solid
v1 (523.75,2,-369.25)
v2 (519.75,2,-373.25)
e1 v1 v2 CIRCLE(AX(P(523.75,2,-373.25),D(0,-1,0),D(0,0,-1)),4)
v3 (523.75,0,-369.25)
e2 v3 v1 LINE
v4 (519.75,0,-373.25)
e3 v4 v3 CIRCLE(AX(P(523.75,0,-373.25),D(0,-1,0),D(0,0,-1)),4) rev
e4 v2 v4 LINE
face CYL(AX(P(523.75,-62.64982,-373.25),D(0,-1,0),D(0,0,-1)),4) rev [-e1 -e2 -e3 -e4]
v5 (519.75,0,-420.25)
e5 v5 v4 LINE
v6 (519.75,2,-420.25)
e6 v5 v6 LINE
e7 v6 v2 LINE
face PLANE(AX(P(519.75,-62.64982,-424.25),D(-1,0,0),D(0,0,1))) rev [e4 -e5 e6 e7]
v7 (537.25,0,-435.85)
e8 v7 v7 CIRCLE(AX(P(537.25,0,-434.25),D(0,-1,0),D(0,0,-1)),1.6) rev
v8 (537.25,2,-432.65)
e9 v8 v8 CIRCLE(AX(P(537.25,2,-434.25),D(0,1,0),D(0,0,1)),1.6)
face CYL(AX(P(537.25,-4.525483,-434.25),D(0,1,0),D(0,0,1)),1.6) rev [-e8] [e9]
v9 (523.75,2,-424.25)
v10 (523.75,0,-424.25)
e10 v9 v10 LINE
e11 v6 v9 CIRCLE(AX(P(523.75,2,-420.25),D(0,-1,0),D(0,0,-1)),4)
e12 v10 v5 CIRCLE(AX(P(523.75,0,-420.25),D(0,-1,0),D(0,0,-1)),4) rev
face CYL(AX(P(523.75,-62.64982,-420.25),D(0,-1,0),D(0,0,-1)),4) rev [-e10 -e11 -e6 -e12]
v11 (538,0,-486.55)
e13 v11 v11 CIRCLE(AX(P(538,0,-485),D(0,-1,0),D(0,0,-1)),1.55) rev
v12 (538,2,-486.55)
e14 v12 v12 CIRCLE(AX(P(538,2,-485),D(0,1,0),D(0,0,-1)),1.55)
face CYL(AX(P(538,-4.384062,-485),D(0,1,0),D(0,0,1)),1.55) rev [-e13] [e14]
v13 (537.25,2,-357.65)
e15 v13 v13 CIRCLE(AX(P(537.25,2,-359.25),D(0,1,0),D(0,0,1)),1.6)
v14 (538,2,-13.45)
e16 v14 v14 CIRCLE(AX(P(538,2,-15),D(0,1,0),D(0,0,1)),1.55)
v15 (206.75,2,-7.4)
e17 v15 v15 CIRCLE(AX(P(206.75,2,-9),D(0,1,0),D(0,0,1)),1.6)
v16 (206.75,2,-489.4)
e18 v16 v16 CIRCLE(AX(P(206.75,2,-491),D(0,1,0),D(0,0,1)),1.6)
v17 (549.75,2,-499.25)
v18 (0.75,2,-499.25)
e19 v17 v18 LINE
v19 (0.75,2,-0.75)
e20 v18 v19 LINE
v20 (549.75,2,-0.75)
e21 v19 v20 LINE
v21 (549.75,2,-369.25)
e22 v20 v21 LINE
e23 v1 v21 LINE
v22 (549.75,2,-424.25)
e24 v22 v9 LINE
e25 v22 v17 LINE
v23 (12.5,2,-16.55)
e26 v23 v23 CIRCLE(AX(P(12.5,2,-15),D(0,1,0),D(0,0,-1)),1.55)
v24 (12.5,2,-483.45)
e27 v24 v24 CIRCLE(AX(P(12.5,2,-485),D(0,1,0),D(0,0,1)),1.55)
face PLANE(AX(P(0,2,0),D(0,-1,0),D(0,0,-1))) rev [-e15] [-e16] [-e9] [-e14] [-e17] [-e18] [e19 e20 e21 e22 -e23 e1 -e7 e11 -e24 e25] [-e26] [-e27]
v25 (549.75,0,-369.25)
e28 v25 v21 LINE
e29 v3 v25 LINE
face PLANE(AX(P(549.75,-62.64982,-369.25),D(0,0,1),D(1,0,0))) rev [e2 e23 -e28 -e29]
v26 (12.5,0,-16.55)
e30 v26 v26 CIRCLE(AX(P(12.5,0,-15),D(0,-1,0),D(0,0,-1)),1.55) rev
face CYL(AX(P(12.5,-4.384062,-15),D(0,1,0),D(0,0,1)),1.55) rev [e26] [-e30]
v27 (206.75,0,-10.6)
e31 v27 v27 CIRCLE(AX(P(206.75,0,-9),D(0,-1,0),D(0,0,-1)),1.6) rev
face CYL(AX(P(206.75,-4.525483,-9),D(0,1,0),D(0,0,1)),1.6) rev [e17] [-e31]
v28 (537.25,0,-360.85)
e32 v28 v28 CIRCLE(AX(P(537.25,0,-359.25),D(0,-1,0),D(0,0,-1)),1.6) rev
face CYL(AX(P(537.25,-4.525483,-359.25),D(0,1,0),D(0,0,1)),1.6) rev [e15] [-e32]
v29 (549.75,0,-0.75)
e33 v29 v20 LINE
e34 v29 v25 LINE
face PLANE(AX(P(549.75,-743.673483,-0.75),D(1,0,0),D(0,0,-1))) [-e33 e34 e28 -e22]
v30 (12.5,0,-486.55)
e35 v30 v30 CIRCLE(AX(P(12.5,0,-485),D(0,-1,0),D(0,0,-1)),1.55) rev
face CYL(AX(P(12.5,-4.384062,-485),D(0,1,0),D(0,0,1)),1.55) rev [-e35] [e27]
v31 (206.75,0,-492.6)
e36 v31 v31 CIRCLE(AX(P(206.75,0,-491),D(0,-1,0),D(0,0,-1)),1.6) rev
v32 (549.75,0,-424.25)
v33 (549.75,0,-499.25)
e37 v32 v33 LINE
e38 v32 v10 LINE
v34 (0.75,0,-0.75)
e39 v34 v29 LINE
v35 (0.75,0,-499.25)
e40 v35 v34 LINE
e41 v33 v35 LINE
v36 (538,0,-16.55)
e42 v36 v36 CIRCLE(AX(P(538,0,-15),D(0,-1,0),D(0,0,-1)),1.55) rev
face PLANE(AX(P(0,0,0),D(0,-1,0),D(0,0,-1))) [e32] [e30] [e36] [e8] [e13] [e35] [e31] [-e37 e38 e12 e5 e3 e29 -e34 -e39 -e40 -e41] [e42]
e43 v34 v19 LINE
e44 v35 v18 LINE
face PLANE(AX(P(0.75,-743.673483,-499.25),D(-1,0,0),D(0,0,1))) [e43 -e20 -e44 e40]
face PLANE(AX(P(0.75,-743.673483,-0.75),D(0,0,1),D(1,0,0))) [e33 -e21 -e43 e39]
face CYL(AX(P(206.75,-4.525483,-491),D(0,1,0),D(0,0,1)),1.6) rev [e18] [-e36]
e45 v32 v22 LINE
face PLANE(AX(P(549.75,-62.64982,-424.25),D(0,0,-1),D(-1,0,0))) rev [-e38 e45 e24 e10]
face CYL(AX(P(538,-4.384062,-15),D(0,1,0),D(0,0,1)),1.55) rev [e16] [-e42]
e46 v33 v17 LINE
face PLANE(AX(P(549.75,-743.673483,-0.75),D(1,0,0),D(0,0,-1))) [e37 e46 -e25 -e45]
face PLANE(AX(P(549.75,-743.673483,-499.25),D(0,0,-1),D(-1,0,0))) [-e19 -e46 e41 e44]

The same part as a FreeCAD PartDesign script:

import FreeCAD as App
import Part
import Sketcher


def edges_at(feature, points):
    """Names of the edges that pass closest to the given points."""
    edges = feature.Shape.Edges
    near = lambda p: min(range(len(edges)), key=lambda i: edges[i].distToShape(Part.Vertex(*p))[0])
    return sorted({f"Edge{near(p) + 1}" for p in points})


def add_polygon(sketch, points):
    """Adds a closed chain of lines whose ends are joined by coincident constraints."""
    first, n = sketch.GeometryCount, len(points)
    for a, b in zip(points, points[1:] + points[:1]):
        sketch.addGeometry(Part.LineSegment(App.Vector(*a, 0), App.Vector(*b, 0)), False)
    for i in range(n):
        sketch.addConstraint(Sketcher.Constraint("Coincident", first + i, 2, first + (i + 1) % n, 1))

doc = App.newDocument("Part")
body = doc.addObject("PartDesign::Body", "Body")

# Sketch on XZ plane
sketch1 = body.newObject("Sketcher::SketchObject", "Sketch")
sketch1.AttachmentSupport = (doc.getObject("XZ_Plane"), [""])
sketch1.MapMode = "FlatFace"
add_polygon(sketch1, [(0, -500), (0, 0), (550, 0), (550, -500)])  # lines 0-3
sketch1.addConstraint([
    Sketcher.Constraint("Vertical", 0),
    Sketcher.Constraint("Horizontal", 1),
    Sketcher.Constraint("Vertical", 2),
    Sketcher.Constraint("Horizontal", 3),
    Sketcher.Constraint("Coincident", 0, 2, -1, 1),
    Sketcher.Constraint("DistanceY", 0, 1, 0, 2, 500.0),
    Sketcher.Constraint("DistanceX", 1, 1, 1, 2, 550.5),
])
pad1 = body.newObject("PartDesign::Pad", "Pad")
pad1.Profile = sketch1
pad1.Length = 2
pad1.Reversed = True

# Sketch on XZ plane
sketch2 = body.newObject("Sketcher::SketchObject", "Sketch001")
sketch2.AttachmentSupport = (doc.getObject("XZ_Plane"), [""])
sketch2.MapMode = "FlatFace"
sketch2.AttachmentOffset = App.Placement(App.Vector(0, 0, -2), App.Rotation())
sketch2.addGeometry([
    Part.Circle(App.Vector(12.5, -485, 0), App.Vector(0, 0, 1), 1.6),
    Part.Circle(App.Vector(538, -485, 0), App.Vector(0, 0, 1), 1.6),
    Part.Circle(App.Vector(538, -15, 0), App.Vector(0, 0, 1), 1.6),
    Part.Circle(App.Vector(12.5, -15, 0), App.Vector(0, 0, 1), 1.6),
], False)
sketch2.addConstraint([
    Sketcher.Constraint("Equal", 0, 1),
    Sketcher.Constraint("Equal", 1, 2),
    Sketcher.Constraint("Equal", 2, 3),
    Sketcher.Constraint("Horizontal", 0, 3, 1, 3),
    Sketcher.Constraint("Horizontal", 2, 3, 3, 3),
    Sketcher.Constraint("Vertical", 1, 3, 2, 3),
    Sketcher.Constraint("Vertical", 0, 3, 3, 3),
    Sketcher.Constraint("Diameter", 0, 3.1),
    Sketcher.Constraint("DistanceY", 0, 3, -1, 1, 485.0),
    Sketcher.Constraint("DistanceX", -1, 1, 1, 3, 538.0),
    Sketcher.Constraint("DistanceY", 2, 3, -1, 1, 15.0),
    Sketcher.Constraint("DistanceX", -1, 1, 0, 3, 12.5),
])
pocket1 = body.newObject("PartDesign::Pocket", "Pocket")
pocket1.Profile = sketch2
pocket1.Length = 2
pocket1.Reversed = True

# Sketch on XZ plane
sketch3 = body.newObject("Sketcher::SketchObject", "Sketch002")
sketch3.AttachmentSupport = (doc.getObject("XZ_Plane"), [""])
sketch3.MapMode = "FlatFace"
sketch3.AttachmentOffset = App.Placement(App.Vector(0, 0, -2), App.Rotation())
add_polygon(sketch3, [(0, -500), (0, 0), (550, 0), (550, -500)])  # lines 0-3
add_polygon(sketch3, [(550, -1), (1, -1), (1, -499), (550, -499)])  # lines 4-7
sketch3.addConstraint([
    Sketcher.Constraint("Vertical", 0),
    Sketcher.Constraint("Horizontal", 1),
    Sketcher.Constraint("Vertical", 2),
    Sketcher.Constraint("Horizontal", 3),
    Sketcher.Constraint("Horizontal", 4),
    Sketcher.Constraint("Vertical", 5),
    Sketcher.Constraint("Horizontal", 6),
    Sketcher.Constraint("Vertical", 7),
    Sketcher.Constraint("Coincident", 0, 2, -1, 1),
    Sketcher.Constraint("DistanceX", 4, 2, 4, 1, 549.0),
    Sketcher.Constraint("DistanceY", 0, 1, 0, 2, 500.0),
    Sketcher.Constraint("DistanceX", 1, 1, 1, 2, 550.5),
    Sketcher.Constraint("DistanceY", 5, 2, 5, 1, 498.5),
    Sketcher.Constraint("DistanceX", -1, 1, 4, 2, 0.75),
    Sketcher.Constraint("DistanceY", 4, 2, -1, 1, 0.75),
])
pocket2 = body.newObject("PartDesign::Pocket", "Pocket001")
pocket2.Profile = sketch3
pocket2.Length = 2
pocket2.Reversed = True

# Sketch on XZ plane
sketch4 = body.newObject("Sketcher::SketchObject", "Sketch003")
sketch4.AttachmentSupport = (doc.getObject("XZ_Plane"), [""])
sketch4.MapMode = "FlatFace"
sketch4.AttachmentOffset = App.Placement(App.Vector(0, 0, -2), App.Rotation())
add_polygon(sketch4, [(520, -424), (520, -369), (550, -369), (550, -424)])  # lines 0-3
sketch4.addConstraint([
    Sketcher.Constraint("Vertical", 0),
    Sketcher.Constraint("Horizontal", 1),
    Sketcher.Constraint("Vertical", 2),
    Sketcher.Constraint("Horizontal", 3),
    Sketcher.Constraint("DistanceX", 1, 1, 1, 2, 30.0),
    Sketcher.Constraint("DistanceY", 0, 1, 0, 2, 55.0),
    Sketcher.Constraint("DistanceX", -1, 1, 0, 2, 519.75),
    Sketcher.Constraint("DistanceY", 0, 2, -1, 1, 369.25),
])
pocket3 = body.newObject("PartDesign::Pocket", "Pocket002")
pocket3.Profile = sketch4
pocket3.Length = 2
pocket3.Reversed = True
doc.recompute()

fillet = body.newObject("PartDesign::Fillet", "Fillet")
fillet.Base = (pocket3, edges_at(pocket3, [(519.75, 1, -424.25), (519.75, 1, -369.25)]))
fillet.Radius = 4

# Sketch on XZ plane
sketch5 = body.newObject("Sketcher::SketchObject", "Sketch004")
sketch5.AttachmentSupport = (doc.getObject("XZ_Plane"), [""])
sketch5.MapMode = "FlatFace"
sketch5.AttachmentOffset = App.Placement(App.Vector(0, 0, -2), App.Rotation())
sketch5.addGeometry([
    Part.Circle(App.Vector(537.2, -434.2, 0), App.Vector(0, 0, 1), 1.6),
    Part.Circle(App.Vector(537.2, -359.2, 0), App.Vector(0, 0, 1), 1.6),
], False)
sketch5.addConstraint([
    Sketcher.Constraint("Equal", 0, 1),
    Sketcher.Constraint("Vertical", 0, 3, 1, 3),
    Sketcher.Constraint("Diameter", 0, 3.2),
    Sketcher.Constraint("DistanceY", 0, 3, 1, 3, 75.0),
    Sketcher.Constraint("DistanceX", -1, 1, 0, 3, 537.25),
    Sketcher.Constraint("DistanceY", 0, 3, -1, 1, 434.25),
])
pocket4 = body.newObject("PartDesign::Pocket", "Pocket003")
pocket4.Profile = sketch5
pocket4.Length = 2
pocket4.Reversed = True

# Sketch on XZ plane
sketch6 = body.newObject("Sketcher::SketchObject", "Sketch005")
sketch6.AttachmentSupport = (doc.getObject("XZ_Plane"), [""])
sketch6.MapMode = "FlatFace"
sketch6.AttachmentOffset = App.Placement(App.Vector(0, 0, -2), App.Rotation())
sketch6.addGeometry([
    Part.Circle(App.Vector(206.8, -491, 0), App.Vector(0, 0, 1), 1.6),
    Part.Circle(App.Vector(206.8, -9, 0), App.Vector(0, 0, 1), 1.6),
], False)
sketch6.addConstraint([
    Sketcher.Constraint("Equal", 0, 1),
    Sketcher.Constraint("Vertical", 0, 3, 1, 3),
    Sketcher.Constraint("Diameter", 0, 3.2),
    Sketcher.Constraint("DistanceY", 0, 3, -1, 1, 491.0),
    Sketcher.Constraint("DistanceY", 1, 3, -1, 1, 9.0),
    Sketcher.Constraint("DistanceX", -1, 1, 0, 3, 206.75),
])
pocket5 = body.newObject("PartDesign::Pocket", "Pocket004")
pocket5.Profile = sketch6
pocket5.Length = 2
pocket5.Reversed = True

doc.recompute()
